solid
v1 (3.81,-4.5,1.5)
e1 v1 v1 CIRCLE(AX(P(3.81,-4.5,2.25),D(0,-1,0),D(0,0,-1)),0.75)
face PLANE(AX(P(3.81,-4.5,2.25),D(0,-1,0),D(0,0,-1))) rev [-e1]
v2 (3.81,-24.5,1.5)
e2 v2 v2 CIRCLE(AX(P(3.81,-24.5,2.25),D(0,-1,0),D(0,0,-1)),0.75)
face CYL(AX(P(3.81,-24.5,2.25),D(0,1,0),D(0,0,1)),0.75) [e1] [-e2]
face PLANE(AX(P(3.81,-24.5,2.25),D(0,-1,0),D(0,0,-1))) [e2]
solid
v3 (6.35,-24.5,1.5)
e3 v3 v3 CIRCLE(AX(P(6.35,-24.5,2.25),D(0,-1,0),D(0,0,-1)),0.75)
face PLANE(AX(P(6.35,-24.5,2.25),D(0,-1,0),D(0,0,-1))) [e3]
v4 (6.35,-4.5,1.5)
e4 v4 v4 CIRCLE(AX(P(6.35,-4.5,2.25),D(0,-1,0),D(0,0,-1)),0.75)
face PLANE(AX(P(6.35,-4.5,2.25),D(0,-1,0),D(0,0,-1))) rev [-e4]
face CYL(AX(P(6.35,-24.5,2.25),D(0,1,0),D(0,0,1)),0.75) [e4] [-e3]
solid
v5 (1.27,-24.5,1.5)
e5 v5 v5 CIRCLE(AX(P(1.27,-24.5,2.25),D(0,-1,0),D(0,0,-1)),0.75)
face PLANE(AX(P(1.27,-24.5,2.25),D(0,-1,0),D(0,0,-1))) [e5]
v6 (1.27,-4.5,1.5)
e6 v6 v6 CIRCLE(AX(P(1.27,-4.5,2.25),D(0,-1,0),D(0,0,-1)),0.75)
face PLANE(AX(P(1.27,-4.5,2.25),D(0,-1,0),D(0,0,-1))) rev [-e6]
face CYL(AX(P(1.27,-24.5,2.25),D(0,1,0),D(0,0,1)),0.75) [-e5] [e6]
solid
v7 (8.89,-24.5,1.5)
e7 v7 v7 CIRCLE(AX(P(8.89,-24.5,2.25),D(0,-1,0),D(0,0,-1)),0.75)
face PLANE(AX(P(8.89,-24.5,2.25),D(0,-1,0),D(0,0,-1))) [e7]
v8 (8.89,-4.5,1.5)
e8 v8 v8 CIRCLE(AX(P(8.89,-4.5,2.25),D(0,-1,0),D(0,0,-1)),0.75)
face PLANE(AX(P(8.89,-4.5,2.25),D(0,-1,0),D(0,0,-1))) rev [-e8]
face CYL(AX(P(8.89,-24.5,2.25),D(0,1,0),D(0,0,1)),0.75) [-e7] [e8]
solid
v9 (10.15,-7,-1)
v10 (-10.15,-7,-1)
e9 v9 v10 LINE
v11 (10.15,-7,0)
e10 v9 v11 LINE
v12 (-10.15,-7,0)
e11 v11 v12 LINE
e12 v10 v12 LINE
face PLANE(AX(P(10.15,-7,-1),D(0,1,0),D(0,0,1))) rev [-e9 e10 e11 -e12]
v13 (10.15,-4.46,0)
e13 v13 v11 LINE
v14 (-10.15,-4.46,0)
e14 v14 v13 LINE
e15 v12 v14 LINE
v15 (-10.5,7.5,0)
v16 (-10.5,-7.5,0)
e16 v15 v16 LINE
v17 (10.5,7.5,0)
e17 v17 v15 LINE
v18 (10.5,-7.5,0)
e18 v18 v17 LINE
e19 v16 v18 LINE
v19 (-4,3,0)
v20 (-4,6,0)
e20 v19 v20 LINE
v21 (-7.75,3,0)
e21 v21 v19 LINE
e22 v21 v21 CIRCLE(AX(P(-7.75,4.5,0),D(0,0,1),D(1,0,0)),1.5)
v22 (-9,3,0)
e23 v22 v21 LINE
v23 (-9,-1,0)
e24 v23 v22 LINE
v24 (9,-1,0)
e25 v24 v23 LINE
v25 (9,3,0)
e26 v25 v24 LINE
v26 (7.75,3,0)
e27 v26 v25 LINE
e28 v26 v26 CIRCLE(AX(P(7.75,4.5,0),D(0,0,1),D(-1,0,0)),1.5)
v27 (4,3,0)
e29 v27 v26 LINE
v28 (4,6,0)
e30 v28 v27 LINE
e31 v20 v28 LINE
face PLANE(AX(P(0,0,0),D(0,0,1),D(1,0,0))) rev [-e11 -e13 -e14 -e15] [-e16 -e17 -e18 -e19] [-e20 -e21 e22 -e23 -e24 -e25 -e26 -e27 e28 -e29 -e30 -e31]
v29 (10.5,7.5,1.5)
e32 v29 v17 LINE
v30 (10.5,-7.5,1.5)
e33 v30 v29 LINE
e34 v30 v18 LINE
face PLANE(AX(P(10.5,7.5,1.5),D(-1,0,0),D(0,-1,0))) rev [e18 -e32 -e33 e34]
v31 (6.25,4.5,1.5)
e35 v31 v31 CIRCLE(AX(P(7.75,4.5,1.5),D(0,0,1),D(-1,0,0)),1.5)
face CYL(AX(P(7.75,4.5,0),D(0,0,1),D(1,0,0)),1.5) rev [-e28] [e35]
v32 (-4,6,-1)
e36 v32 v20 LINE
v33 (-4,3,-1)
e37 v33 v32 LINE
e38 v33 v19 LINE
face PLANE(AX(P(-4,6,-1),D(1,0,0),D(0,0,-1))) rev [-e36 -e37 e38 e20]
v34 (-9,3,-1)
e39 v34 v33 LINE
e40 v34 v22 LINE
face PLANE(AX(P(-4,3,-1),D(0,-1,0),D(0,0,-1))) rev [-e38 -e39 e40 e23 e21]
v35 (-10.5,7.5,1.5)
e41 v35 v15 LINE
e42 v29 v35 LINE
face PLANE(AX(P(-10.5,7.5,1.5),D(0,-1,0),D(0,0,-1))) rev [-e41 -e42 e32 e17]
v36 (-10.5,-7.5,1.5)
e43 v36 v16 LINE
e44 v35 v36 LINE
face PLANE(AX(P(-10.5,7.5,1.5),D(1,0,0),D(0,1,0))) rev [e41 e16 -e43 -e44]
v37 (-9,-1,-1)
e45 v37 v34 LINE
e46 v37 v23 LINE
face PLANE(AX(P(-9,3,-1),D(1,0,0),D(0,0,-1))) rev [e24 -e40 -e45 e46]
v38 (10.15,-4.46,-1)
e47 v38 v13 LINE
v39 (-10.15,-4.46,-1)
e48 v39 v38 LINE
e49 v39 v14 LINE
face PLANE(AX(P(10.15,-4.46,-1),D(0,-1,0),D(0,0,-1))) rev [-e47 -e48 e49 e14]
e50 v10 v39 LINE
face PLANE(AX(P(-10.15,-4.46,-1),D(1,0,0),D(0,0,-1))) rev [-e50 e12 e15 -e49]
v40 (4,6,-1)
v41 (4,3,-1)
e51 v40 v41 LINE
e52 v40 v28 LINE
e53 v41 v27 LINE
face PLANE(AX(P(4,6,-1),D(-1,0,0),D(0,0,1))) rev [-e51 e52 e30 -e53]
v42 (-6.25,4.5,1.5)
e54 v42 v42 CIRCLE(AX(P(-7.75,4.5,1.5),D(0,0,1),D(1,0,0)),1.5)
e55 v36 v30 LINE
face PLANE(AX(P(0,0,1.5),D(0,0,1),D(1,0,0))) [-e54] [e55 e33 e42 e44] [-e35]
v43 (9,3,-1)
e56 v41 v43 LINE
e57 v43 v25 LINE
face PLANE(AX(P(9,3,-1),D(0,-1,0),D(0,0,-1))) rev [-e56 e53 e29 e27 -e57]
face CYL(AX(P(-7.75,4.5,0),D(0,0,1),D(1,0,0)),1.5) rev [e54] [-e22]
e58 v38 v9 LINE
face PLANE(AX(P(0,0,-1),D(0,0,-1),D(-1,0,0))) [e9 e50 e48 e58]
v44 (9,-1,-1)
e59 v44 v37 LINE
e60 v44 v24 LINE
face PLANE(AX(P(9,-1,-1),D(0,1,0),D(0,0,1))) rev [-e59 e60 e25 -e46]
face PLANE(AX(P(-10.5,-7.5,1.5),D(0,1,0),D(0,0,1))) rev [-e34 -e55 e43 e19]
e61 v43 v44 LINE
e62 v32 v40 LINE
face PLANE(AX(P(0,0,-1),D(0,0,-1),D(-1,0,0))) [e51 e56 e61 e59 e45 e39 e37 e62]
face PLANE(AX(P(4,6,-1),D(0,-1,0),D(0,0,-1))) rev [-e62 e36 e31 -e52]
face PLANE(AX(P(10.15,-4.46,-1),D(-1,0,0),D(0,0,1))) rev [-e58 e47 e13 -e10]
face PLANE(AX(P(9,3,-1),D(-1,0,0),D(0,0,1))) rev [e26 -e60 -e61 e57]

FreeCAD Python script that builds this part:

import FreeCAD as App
import Part
import Sketcher
from FreeCAD import Vector


def add_polygon(sketch, points):
    """Adds a closed chain of lines whose ends are joined by coincident constraints."""
    first, n = sketch.GeometryCount, len(points)
    for a, b in zip(points, points[1:] + points[:1]):
        sketch.addGeometry(Part.LineSegment(App.Vector(*a, 0), App.Vector(*b, 0)), False)
    for i in range(n):
        sketch.addConstraint(Sketcher.Constraint("Coincident", first + i, 2, first + (i + 1) % n, 1))

doc = App.newDocument("Part")
params = doc.addObject("Spreadsheet::Sheet", "Params")
for row, (alias, value) in enumerate([
    ("sketch1_width", "21 mm"),
    ("sketch1_height", "15 mm"),
    ("pad1_length", "1.5 mm"),
    ("sketch2_diameter", "3 mm"),
    ("sketch3_width", "5 mm"),
    ("sketch3_width2", "18 mm"),
    ("sketch3_height", "4 mm"),
    ("sketch3_height2", "3 mm"),
    ("sketch3_width3", "20.3 mm"),
    ("pad2_length", "1 mm"),
    ("sketch4_diameter", "1.5 mm"),
    ("pad3_length", "20 mm"),
    ("sketch5_diameter", "1.5 mm"),
    ("pad4_length", "20 mm"),
    ("sketch6_diameter", "1.5 mm"),
    ("pad5_length", "20 mm"),
    ("sketch7_diameter", "1.5 mm"),
    ("pad6_length", "20 mm"),
], start=1):
    params.set(f"A{row}", alias)
    params.set(f"B{row}", "=" + value)
    params.setAlias(f"B{row}", alias)

body = doc.addObject("PartDesign::Body", "Body")

# Sketch on XY plane
sketch1 = body.newObject("Sketcher::SketchObject", "Sketch")
sketch1.AttachmentSupport = (doc.getObject("XY_Plane"), [""])
sketch1.MapMode = "FlatFace"
add_polygon(sketch1, [(-10, 8), (-10, -8), (10, -8), (10, 8)])  # lines 0-3
sketch1.addConstraint([
    Sketcher.Constraint("Vertical", 0),
    Sketcher.Constraint("Horizontal", 1),
    Sketcher.Constraint("Vertical", 2),
    Sketcher.Constraint("Horizontal", 3),
    Sketcher.Constraint("Symmetric", 0, 2, 2, 2, -1, 1),
    Sketcher.Constraint("DistanceX", 1, 1, 1, 2, 21.0),
    Sketcher.Constraint("DistanceY", 0, 2, 0, 1, 15.0),
])
sketch1.setExpression("Constraints[9]", "Params.sketch1_width")
sketch1.setExpression("Constraints[10]", "Params.sketch1_height")
pad1 = body.newObject("PartDesign::Pad", "Pad")
pad1.Profile = sketch1
pad1.setExpression("Length", "Params.pad1_length")

# Sketch on XY plane
sketch2 = body.newObject("Sketcher::SketchObject", "Sketch001")
sketch2.AttachmentSupport = (doc.getObject("XY_Plane"), [""])
sketch2.MapMode = "FlatFace"
sketch2.AttachmentOffset = App.Placement(Vector(0, 0, 1.5), App.Rotation())
sketch2.addGeometry([
    Part.Circle(Vector(-7.8, 4.5, 0), Vector(0, 0, 1), 1.5),
    Part.Circle(Vector(7.8, 4.5, 0), Vector(0, 0, 1), 1.5),
], False)
sketch2.addConstraint([
    Sketcher.Constraint("Equal", 0, 1),
    Sketcher.Constraint("Symmetric", 0, 3, 1, 3, -2),
    Sketcher.Constraint("Diameter", 0, 3.0),
    Sketcher.Constraint("DistanceY", -1, 1, 0, 3, 4.5),
    Sketcher.Constraint("DistanceX", 0, 3, 1, 3, 15.5),
])
sketch2.setExpression("Constraints[2]", "Params.sketch2_diameter")
pocket1 = body.newObject("PartDesign::Pocket", "Pocket")
pocket1.Profile = sketch2
pocket1.Type = "ThroughAll"

# Sketch on XY plane
sketch3 = body.newObject("Sketcher::SketchObject", "Sketch002")
sketch3.AttachmentSupport = (doc.getObject("XY_Plane"), [""])
sketch3.MapMode = "FlatFace"
add_polygon(sketch3, [(10.2, -4.5), (10.2, -7), (-10.2, -7), (-10.2, -4.5)])  # lines 0-3
add_polygon(sketch3, [(4, 3), (9, 3), (9, -1), (-9, -1), (-9, 3), (-4, 3), (-4, 6), (4, 6)])  # lines 4-11
sketch3.addConstraint([
    Sketcher.Constraint("Vertical", 0),
    Sketcher.Constraint("Horizontal", 1),
    Sketcher.Constraint("Vertical", 2),
    Sketcher.Constraint("Horizontal", 3),
    Sketcher.Constraint("Horizontal", 4),
    Sketcher.Constraint("Vertical", 5),
    Sketcher.Constraint("Horizontal", 6),
    Sketcher.Constraint("Vertical", 7),
    Sketcher.Constraint("Horizontal", 8),
    Sketcher.Constraint("Vertical", 9),
    Sketcher.Constraint("Horizontal", 10),
    Sketcher.Constraint("Vertical", 11),
    Sketcher.Constraint("Symmetric", 4, 2, 7, 2, -2),
    Sketcher.Constraint("Equal", 4, 8),
    Sketcher.Constraint("DistanceX", 4, 1, 4, 2, 5.0),
    Sketcher.Constraint("DistanceX", 6, 2, 6, 1, 18.0),
    Sketcher.Constraint("DistanceY", 5, 2, 5, 1, 4.0),
    Sketcher.Constraint("DistanceY", 9, 1, 9, 2, 3.0),
    Sketcher.Constraint("DistanceX", 1, 2, 1, 1, 20.3),
    Sketcher.Constraint("DistanceY", 0, 2, -1, 1, 7.0),
    Sketcher.Constraint("DistanceY", -1, 1, 4, 2, 3.0),
    Sketcher.Constraint("DistanceY", 0, 2, 0, 1, 2.54),
    Sketcher.Constraint("DistanceX", -1, 1, 0, 2, 10.15),
])
sketch3.setExpression("Constraints[26]", "Params.sketch3_width")
sketch3.setExpression("Constraints[27]", "Params.sketch3_width2")
sketch3.setExpression("Constraints[28]", "Params.sketch3_height")
sketch3.setExpression("Constraints[29]", "Params.sketch3_height2")
sketch3.setExpression("Constraints[30]", "Params.sketch3_width3")
pad2 = body.newObject("PartDesign::Pad", "Pad001")
pad2.Profile = sketch3
pad2.setExpression("Length", "Params.pad2_length")
pad2.Reversed = True
body2 = doc.addObject("PartDesign::Body", "Body001")

# Sketch on XZ plane
sketch4 = body2.newObject("Sketcher::SketchObject", "Sketch003")
sketch4.AttachmentSupport = (doc.getObject("XZ_Plane001"), [""])
sketch4.MapMode = "FlatFace"
sketch4.AttachmentOffset = App.Placement(Vector(0, 0, 4.5), App.Rotation())
sketch4.addGeometry(Part.Circle(Vector(8.9, 2.2, 0), Vector(0, 0, 1), 0.8), False)
sketch4.addConstraint([
    Sketcher.Constraint("Diameter", 0, 1.5),
    Sketcher.Constraint("DistanceX", -1, 1, 0, 3, 8.89),
    Sketcher.Constraint("DistanceY", -1, 1, 0, 3, 2.25),
])
sketch4.setExpression("Constraints[0]", "Params.sketch4_diameter")
pad3 = body2.newObject("PartDesign::Pad", "Pad002")
pad3.Profile = sketch4
pad3.setExpression("Length", "Params.pad3_length")
body3 = doc.addObject("PartDesign::Body", "Body002")

# Sketch on XZ plane
sketch5 = body3.newObject("Sketcher::SketchObject", "Sketch004")
sketch5.AttachmentSupport = (doc.getObject("XZ_Plane002"), [""])
sketch5.MapMode = "FlatFace"
sketch5.AttachmentOffset = App.Placement(Vector(0, 0, 4.5), App.Rotation())
sketch5.addGeometry(Part.Circle(Vector(6.3, 2.2, 0), Vector(0, 0, 1), 0.8), False)
sketch5.addConstraint([
    Sketcher.Constraint("Diameter", 0, 1.5),
    Sketcher.Constraint("DistanceX", -1, 1, 0, 3, 6.35),
    Sketcher.Constraint("DistanceY", -1, 1, 0, 3, 2.25),
])
sketch5.setExpression("Constraints[0]", "Params.sketch5_diameter")
pad4 = body3.newObject("PartDesign::Pad", "Pad003")
pad4.Profile = sketch5
pad4.setExpression("Length", "Params.pad4_length")
body4 = doc.addObject("PartDesign::Body", "Body003")

# Sketch on XZ plane
sketch6 = body4.newObject("Sketcher::SketchObject", "Sketch005")
sketch6.AttachmentSupport = (doc.getObject("XZ_Plane003"), [""])
sketch6.MapMode = "FlatFace"
sketch6.AttachmentOffset = App.Placement(Vector(0, 0, 4.5), App.Rotation())
sketch6.addGeometry(Part.Circle(Vector(3.8, 2.2, 0), Vector(0, 0, 1), 0.8), False)
sketch6.addConstraint([
    Sketcher.Constraint("Diameter", 0, 1.5),
    Sketcher.Constraint("DistanceX", -1, 1, 0, 3, 3.81),
    Sketcher.Constraint("DistanceY", -1, 1, 0, 3, 2.25),
])
sketch6.setExpression("Constraints[0]", "Params.sketch6_diameter")
pad5 = body4.newObject("PartDesign::Pad", "Pad004")
pad5.Profile = sketch6
pad5.setExpression("Length", "Params.pad5_length")
body5 = doc.addObject("PartDesign::Body", "Body004")

# Sketch on XZ plane
sketch7 = body5.newObject("Sketcher::SketchObject", "Sketch006")
sketch7.AttachmentSupport = (doc.getObject("XZ_Plane004"), [""])
sketch7.MapMode = "FlatFace"
sketch7.AttachmentOffset = App.Placement(Vector(0, 0, 4.5), App.Rotation())
sketch7.addGeometry(Part.Circle(Vector(1.3, 2.2, 0), Vector(0, 0, 1), 0.8), False)
sketch7.addConstraint([
    Sketcher.Constraint("Diameter", 0, 1.5),
    Sketcher.Constraint("DistanceX", -1, 1, 0, 3, 1.27),
    Sketcher.Constraint("DistanceY", -1, 1, 0, 3, 2.25),
])
sketch7.setExpression("Constraints[0]", "Params.sketch7_diameter")
pad6 = body5.newObject("PartDesign::Pad", "Pad005")
pad6.Profile = sketch7
pad6.setExpression("Length", "Params.pad6_length")

doc.recompute()
